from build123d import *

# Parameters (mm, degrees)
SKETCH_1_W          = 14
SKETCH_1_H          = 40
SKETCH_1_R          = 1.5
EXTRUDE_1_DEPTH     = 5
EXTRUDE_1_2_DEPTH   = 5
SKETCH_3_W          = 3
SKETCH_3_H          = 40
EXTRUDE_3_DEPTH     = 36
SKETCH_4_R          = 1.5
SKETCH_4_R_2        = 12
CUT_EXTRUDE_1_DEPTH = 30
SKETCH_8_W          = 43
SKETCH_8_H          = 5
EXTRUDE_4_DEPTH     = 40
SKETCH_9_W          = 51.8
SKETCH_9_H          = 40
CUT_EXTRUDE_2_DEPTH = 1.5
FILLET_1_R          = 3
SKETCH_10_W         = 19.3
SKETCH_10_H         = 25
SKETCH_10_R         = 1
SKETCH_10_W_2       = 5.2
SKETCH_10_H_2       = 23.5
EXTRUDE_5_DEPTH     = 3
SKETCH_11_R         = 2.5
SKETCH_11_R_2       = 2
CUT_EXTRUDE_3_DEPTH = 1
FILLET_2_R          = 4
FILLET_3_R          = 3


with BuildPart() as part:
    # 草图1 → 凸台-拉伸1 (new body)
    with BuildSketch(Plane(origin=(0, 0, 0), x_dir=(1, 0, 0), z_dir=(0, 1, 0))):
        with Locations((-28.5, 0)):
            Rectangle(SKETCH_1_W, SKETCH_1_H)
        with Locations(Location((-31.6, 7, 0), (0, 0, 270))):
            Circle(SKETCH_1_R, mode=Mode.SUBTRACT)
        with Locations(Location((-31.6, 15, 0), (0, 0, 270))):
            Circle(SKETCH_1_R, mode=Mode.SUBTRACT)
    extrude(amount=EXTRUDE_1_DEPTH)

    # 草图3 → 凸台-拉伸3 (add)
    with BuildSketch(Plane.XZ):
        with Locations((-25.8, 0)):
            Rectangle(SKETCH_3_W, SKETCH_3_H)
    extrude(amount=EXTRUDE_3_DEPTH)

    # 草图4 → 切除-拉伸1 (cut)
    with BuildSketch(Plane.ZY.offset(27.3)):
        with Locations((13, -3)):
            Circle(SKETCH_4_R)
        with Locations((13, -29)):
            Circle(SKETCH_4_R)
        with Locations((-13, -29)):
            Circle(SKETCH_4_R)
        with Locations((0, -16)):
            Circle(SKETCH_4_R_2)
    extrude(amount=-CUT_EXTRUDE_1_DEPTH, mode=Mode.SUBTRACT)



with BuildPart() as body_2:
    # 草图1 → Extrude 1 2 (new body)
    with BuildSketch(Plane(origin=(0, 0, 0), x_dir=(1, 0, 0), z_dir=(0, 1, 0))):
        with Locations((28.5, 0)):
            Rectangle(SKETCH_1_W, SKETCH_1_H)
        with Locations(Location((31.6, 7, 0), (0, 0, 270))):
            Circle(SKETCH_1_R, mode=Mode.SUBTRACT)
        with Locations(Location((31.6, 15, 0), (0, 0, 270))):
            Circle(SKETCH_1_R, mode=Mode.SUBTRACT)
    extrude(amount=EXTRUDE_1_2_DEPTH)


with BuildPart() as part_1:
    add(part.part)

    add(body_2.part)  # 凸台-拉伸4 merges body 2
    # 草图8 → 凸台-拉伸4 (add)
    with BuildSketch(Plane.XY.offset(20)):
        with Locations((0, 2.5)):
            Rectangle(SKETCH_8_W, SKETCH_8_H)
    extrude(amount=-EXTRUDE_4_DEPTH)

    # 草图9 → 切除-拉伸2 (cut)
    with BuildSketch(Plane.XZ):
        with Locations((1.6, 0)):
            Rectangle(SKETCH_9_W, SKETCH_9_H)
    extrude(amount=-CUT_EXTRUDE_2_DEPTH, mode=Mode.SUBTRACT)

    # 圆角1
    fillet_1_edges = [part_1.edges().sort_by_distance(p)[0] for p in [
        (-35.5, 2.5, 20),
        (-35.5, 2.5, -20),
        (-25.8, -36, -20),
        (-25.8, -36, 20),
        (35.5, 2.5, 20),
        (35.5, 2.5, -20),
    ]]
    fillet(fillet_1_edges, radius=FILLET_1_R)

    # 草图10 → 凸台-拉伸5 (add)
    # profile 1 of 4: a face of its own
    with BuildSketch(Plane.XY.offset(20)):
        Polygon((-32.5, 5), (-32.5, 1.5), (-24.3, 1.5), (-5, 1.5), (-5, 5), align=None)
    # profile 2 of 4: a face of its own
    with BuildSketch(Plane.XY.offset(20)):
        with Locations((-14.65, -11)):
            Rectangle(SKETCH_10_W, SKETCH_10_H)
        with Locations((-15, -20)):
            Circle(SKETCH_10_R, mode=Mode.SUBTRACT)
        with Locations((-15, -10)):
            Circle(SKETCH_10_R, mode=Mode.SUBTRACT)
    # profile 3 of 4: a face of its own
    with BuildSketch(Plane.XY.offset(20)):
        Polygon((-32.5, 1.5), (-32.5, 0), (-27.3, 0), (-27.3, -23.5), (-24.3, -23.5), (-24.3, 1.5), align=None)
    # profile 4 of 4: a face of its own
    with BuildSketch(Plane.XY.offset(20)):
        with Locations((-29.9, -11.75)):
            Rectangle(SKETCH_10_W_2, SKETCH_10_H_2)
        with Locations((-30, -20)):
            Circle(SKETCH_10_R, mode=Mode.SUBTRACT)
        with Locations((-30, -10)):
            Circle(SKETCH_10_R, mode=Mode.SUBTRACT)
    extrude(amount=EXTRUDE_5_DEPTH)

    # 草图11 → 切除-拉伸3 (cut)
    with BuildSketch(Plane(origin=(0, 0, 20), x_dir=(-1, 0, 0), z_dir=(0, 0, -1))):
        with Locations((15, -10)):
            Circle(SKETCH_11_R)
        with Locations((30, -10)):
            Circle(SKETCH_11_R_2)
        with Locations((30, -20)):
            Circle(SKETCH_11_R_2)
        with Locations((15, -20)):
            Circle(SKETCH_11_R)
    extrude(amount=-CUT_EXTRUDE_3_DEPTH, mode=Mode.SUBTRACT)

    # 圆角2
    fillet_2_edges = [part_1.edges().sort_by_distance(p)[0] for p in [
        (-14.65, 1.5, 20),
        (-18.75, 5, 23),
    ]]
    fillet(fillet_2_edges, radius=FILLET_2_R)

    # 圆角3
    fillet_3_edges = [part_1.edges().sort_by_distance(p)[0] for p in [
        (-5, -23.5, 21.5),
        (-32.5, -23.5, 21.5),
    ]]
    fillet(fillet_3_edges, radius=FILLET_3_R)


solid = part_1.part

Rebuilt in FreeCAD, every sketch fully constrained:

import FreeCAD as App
import Part
import Sketcher
from FreeCAD import Vector


def edges_at(feature, points):
    """Names of the edges that pass closest to the given points."""
    edges = feature.Shape.Edges
    near = lambda p: min(range(len(edges)), key=lambda i: edges[i].distToShape(Part.Vertex(*p))[0])
    return sorted({f"Edge{near(p) + 1}" for p in points})

doc = App.newDocument("Part")
body = doc.addObject("PartDesign::Body", "Body")

# Sketch on XZ plane
sketch1 = body.newObject("Sketcher::SketchObject", "Sketch")
sketch1.AttachmentSupport = (doc.getObject("XZ_Plane"), [""])
sketch1.MapMode = "FlatFace"
sketch1.addGeometry([
    Part.LineSegment(Vector(-35.5, -20, 0), Vector(-35.5, 20, 0)),  # 0
    Part.LineSegment(Vector(-35.5, 20, 0), Vector(-21.5, 20, 0)),  # 1
    Part.LineSegment(Vector(-21.5, 20, 0), Vector(-21.5, -20, 0)),  # 2
    Part.LineSegment(Vector(-21.5, -20, 0), Vector(-35.5, -20, 0)),  # 3
    Part.Circle(Vector(-31.6, -7, 0), Vector(0, 0, 1), 1.5),  # 4
    Part.Circle(Vector(-31.6, -15, 0), Vector(0, 0, 1), 1.5),  # 5
], False)
sketch1.addConstraint([
    Sketcher.Constraint("Coincident", 0, 2, 1, 1),
    Sketcher.Constraint("Coincident", 1, 2, 2, 1),
    Sketcher.Constraint("Coincident", 2, 2, 3, 1),
    Sketcher.Constraint("Coincident", 3, 2, 0, 1),
    Sketcher.Constraint("Vertical", 0),
    Sketcher.Constraint("Horizontal", 1),
    Sketcher.Constraint("Vertical", 2),
    Sketcher.Constraint("Horizontal", 3),
    Sketcher.Constraint("Equal", 4, 5),
    Sketcher.Constraint("Vertical", 4, 3, 5, 3),
    Sketcher.Constraint("Diameter", 4, 3.0),
    Sketcher.Constraint("DistanceX", 1, 1, 1, 2, 14.0),
    Sketcher.Constraint("DistanceY", 0, 1, 0, 2, 40.0),
    Sketcher.Constraint("DistanceY", 4, 3, -1, 1, 7.0),
    Sketcher.Constraint("DistanceY", 5, 3, -1, 1, 15.0),
    Sketcher.Constraint("DistanceY", -1, 1, 0, 2, 20.0),
    Sketcher.Constraint("DistanceX", 4, 3, -1, 1, 31.6),
    Sketcher.Constraint("DistanceX", 0, 2, -1, 1, 35.5),
])
pad1 = body.newObject("PartDesign::Pad", "Pad")
pad1.Profile = sketch1
pad1.Length = 5
pad1.Reversed = True

# Sketch on XZ plane
sketch2 = body.newObject("Sketcher::SketchObject", "Sketch001")
sketch2.AttachmentSupport = (doc.getObject("XZ_Plane"), [""])
sketch2.MapMode = "FlatFace"
sketch2.addGeometry([
    Part.LineSegment(Vector(-27.3, 20, 0), Vector(-27.3, -20, 0)),
    Part.LineSegment(Vector(-27.3, -20, 0), Vector(-24.3, -20, 0)),
    Part.LineSegment(Vector(-24.3, -20, 0), Vector(-24.3, 20, 0)),
    Part.LineSegment(Vector(-24.3, 20, 0), Vector(-27.3, 20, 0)),
], False)
sketch2.addConstraint([
    Sketcher.Constraint("Coincident", 0, 2, 1, 1),
    Sketcher.Constraint("Coincident", 1, 2, 2, 1),
    Sketcher.Constraint("Coincident", 2, 2, 3, 1),
    Sketcher.Constraint("Coincident", 3, 2, 0, 1),
    Sketcher.Constraint("Vertical", 0),
    Sketcher.Constraint("Horizontal", 1),
    Sketcher.Constraint("Vertical", 2),
    Sketcher.Constraint("Horizontal", 3),
    Sketcher.Constraint("DistanceX", 1, 1, 1, 2, 3.0),
    Sketcher.Constraint("DistanceY", 0, 2, 0, 1, 40.0),
    Sketcher.Constraint("DistanceY", 0, 2, -1, 1, 20.0),
    Sketcher.Constraint("DistanceX", 0, 2, -1, 1, 27.3),
])
pad2 = body.newObject("PartDesign::Pad", "Pad001")
pad2.Profile = sketch2
pad2.Length = 36

# Sketch on YZ plane
sketch3 = body.newObject("Sketcher::SketchObject", "Sketch002")
sketch3.AttachmentSupport = (doc.getObject("YZ_Plane"), [""])
sketch3.MapMode = "FlatFace"
sketch3.AttachmentOffset = App.Placement(Vector(0, 0, -27.3), App.Rotation())
sketch3.addGeometry([
    Part.Circle(Vector(-3, 13, 0), Vector(0, 0, 1), 1.5),
    Part.Circle(Vector(-29, 13, 0), Vector(0, 0, 1), 1.5),
    Part.Circle(Vector(-29, -13, 0), Vector(0, 0, 1), 1.5),
    Part.Circle(Vector(-16, 0, 0), Vector(0, 0, 1), 12),
], False)
sketch3.addConstraint([
    Sketcher.Constraint("Equal", 0, 1),
    Sketcher.Constraint("Equal", 1, 2),
    Sketcher.Constraint("Symmetric", 1, 3, 2, 3, -1),
    Sketcher.Constraint("PointOnObject", 3, 3, -1),
    Sketcher.Constraint("Horizontal", 0, 3, 1, 3),
    Sketcher.Constraint("Diameter", 0, 3.0),
    Sketcher.Constraint("Diameter", 3, 24.0),
    Sketcher.Constraint("DistanceX", 0, 3, -1, 1, 3.0),
    Sketcher.Constraint("DistanceY", -1, 1, 0, 3, 13.0),
    Sketcher.Constraint("DistanceX", 1, 3, -1, 1, 29.0),
    Sketcher.Constraint("DistanceX", 3, 3, -1, 1, 16.0),
])
pocket1 = body.newObject("PartDesign::Pocket", "Pocket")
pocket1.Profile = sketch3
pocket1.Length = 30
pocket1.Reversed = True
body2 = doc.addObject("PartDesign::Body", "Body001")

# Sketch on XZ plane
sketch4 = body2.newObject("Sketcher::SketchObject", "Sketch003")
sketch4.AttachmentSupport = (doc.getObject("XZ_Plane001"), [""])
sketch4.MapMode = "FlatFace"
sketch4.addGeometry([
    Part.LineSegment(Vector(21.5, -20, 0), Vector(21.5, 20, 0)),  # 0
    Part.LineSegment(Vector(21.5, 20, 0), Vector(35.5, 20, 0)),  # 1
    Part.LineSegment(Vector(35.5, 20, 0), Vector(35.5, -20, 0)),  # 2
    Part.LineSegment(Vector(35.5, -20, 0), Vector(21.5, -20, 0)),  # 3
    Part.Circle(Vector(31.6, -7, 0), Vector(0, 0, 1), 1.5),  # 4
    Part.Circle(Vector(31.6, -15, 0), Vector(0, 0, 1), 1.5),  # 5
], False)
sketch4.addConstraint([
    Sketcher.Constraint("Coincident", 0, 2, 1, 1),
    Sketcher.Constraint("Coincident", 1, 2, 2, 1),
    Sketcher.Constraint("Coincident", 2, 2, 3, 1),
    Sketcher.Constraint("Coincident", 3, 2, 0, 1),
    Sketcher.Constraint("Vertical", 0),
    Sketcher.Constraint("Horizontal", 1),
    Sketcher.Constraint("Vertical", 2),
    Sketcher.Constraint("Horizontal", 3),
    Sketcher.Constraint("Equal", 4, 5),
    Sketcher.Constraint("Vertical", 4, 3, 5, 3),
    Sketcher.Constraint("Diameter", 4, 3.0),
    Sketcher.Constraint("DistanceX", 1, 1, 1, 2, 14.0),
    Sketcher.Constraint("DistanceY", 0, 1, 0, 2, 40.0),
    Sketcher.Constraint("DistanceY", 4, 3, -1, 1, 7.0),
    Sketcher.Constraint("DistanceY", 5, 3, -1, 1, 15.0),
    Sketcher.Constraint("DistanceY", -1, 1, 0, 2, 20.0),
    Sketcher.Constraint("DistanceX", -1, 1, 4, 3, 31.6),
    Sketcher.Constraint("DistanceX", -1, 1, 0, 2, 21.5),
])
pad3 = body2.newObject("PartDesign::Pad", "Pad002")
pad3.Profile = sketch4
pad3.Length = 5
pad3.Reversed = True
body.AllowCompound = True
doc.recompute()

boolean = body.newObject("PartDesign::Boolean", "Boolean")
boolean.Type = "Fuse"
boolean.addObjects([body2])

# Sketch on XY plane
sketch5 = body.newObject("Sketcher::SketchObject", "Sketch004")
sketch5.AttachmentSupport = (doc.getObject("XY_Plane"), [""])
sketch5.MapMode = "FlatFace"
sketch5.AttachmentOffset = App.Placement(Vector(0, 0, 20), App.Rotation())
sketch5.addGeometry([
    Part.LineSegment(Vector(-22, 5, 0), Vector(-22, 0, 0)),
    Part.LineSegment(Vector(-22, 0, 0), Vector(22, 0, 0)),
    Part.LineSegment(Vector(22, 0, 0), Vector(22, 5, 0)),
    Part.LineSegment(Vector(22, 5, 0), Vector(-22, 5, 0)),
], False)
sketch5.addConstraint([
    Sketcher.Constraint("Coincident", 0, 2, 1, 1),
    Sketcher.Constraint("Coincident", 1, 2, 2, 1),
    Sketcher.Constraint("Coincident", 2, 2, 3, 1),
    Sketcher.Constraint("Coincident", 3, 2, 0, 1),
    Sketcher.Constraint("Vertical", 0),
    Sketcher.Constraint("Horizontal", 1),
    Sketcher.Constraint("Vertical", 2),
    Sketcher.Constraint("Horizontal", 3),
    Sketcher.Constraint("Symmetric", 0, 2, 1, 2, -1, 1),
    Sketcher.Constraint("DistanceX", 1, 1, 1, 2, 43.0),
    Sketcher.Constraint("DistanceY", 0, 2, 0, 1, 5.0),
])
pad4 = body.newObject("PartDesign::Pad", "Pad003")
pad4.Profile = sketch5
pad4.Length = 40
pad4.Reversed = True

# Sketch on XZ plane
sketch6 = body.newObject("Sketcher::SketchObject", "Sketch005")
sketch6.AttachmentSupport = (doc.getObject("XZ_Plane"), [""])
sketch6.MapMode = "FlatFace"
sketch6.addGeometry([
    Part.LineSegment(Vector(-24, 20, 0), Vector(-24, -20, 0)),
    Part.LineSegment(Vector(-24, -20, 0), Vector(28, -20, 0)),
    Part.LineSegment(Vector(28, -20, 0), Vector(28, 20, 0)),
    Part.LineSegment(Vector(28, 20, 0), Vector(-24, 20, 0)),
], False)
sketch6.addConstraint([
    Sketcher.Constraint("Coincident", 0, 2, 1, 1),
    Sketcher.Constraint("Coincident", 1, 2, 2, 1),
    Sketcher.Constraint("Coincident", 2, 2, 3, 1),
    Sketcher.Constraint("Coincident", 3, 2, 0, 1),
    Sketcher.Constraint("Vertical", 0),
    Sketcher.Constraint("Horizontal", 1),
    Sketcher.Constraint("Vertical", 2),
    Sketcher.Constraint("Horizontal", 3),
    Sketcher.Constraint("DistanceY", 0, 2, 0, 1, 40.0),
    Sketcher.Constraint("DistanceX", 1, 1, 1, 2, 51.8),
    Sketcher.Constraint("DistanceY", 0, 2, -1, 1, 20.0),
    Sketcher.Constraint("DistanceX", 0, 2, -1, 1, 24.3),
])
pocket2 = body.newObject("PartDesign::Pocket", "Pocket001")
pocket2.Profile = sketch6
pocket2.Length = 1.5
doc.recompute()

fillet = body.newObject("PartDesign::Fillet", "Fillet")
fillet.Base = (pocket2, edges_at(pocket2, [
    (-35.5, 2.5, 20),
    (-35.5, 2.5, -20),
    (-25.8, -36, -20),
    (-25.8, -36, 20),
    (35.5, 2.5, 20),
    (35.5, 2.5, -20),
]))
fillet.Radius = 3

# Sketch on XY plane
sketch7 = body.newObject("Sketcher::SketchObject", "Sketch006")
sketch7.AttachmentSupport = (doc.getObject("XY_Plane"), [""])
sketch7.MapMode = "FlatFace"
sketch7.AttachmentOffset = App.Placement(Vector(0, 0, 20), App.Rotation())
sketch7.addGeometry([
    Part.LineSegment(Vector(-32.5, 5, 0), Vector(-32.5, -23.5, 0)),  # 0
    Part.LineSegment(Vector(-32.5, -23.5, 0), Vector(-5, -23.5, 0)),  # 1
    Part.LineSegment(Vector(-5, -23.5, 0), Vector(-5, 5, 0)),  # 2
    Part.LineSegment(Vector(-5, 5, 0), Vector(-32.5, 5, 0)),  # 3
    Part.Circle(Vector(-15, -20, 0), Vector(0, 0, 1), 1),  # 4
    Part.Circle(Vector(-15, -10, 0), Vector(0, 0, 1), 1),  # 5
    Part.Circle(Vector(-30, -10, 0), Vector(0, 0, 1), 1),  # 6
    Part.Circle(Vector(-30, -20, 0), Vector(0, 0, 1), 1),  # 7
], False)
sketch7.addConstraint([
    Sketcher.Constraint("Coincident", 0, 2, 1, 1),
    Sketcher.Constraint("Coincident", 1, 2, 2, 1),
    Sketcher.Constraint("Coincident", 2, 2, 3, 1),
    Sketcher.Constraint("Coincident", 3, 2, 0, 1),
    Sketcher.Constraint("Vertical", 0),
    Sketcher.Constraint("Horizontal", 1),
    Sketcher.Constraint("Vertical", 2),
    Sketcher.Constraint("Horizontal", 3),
    Sketcher.Constraint("Equal", 4, 5),
    Sketcher.Constraint("Equal", 5, 6),
    Sketcher.Constraint("Equal", 6, 7),
    Sketcher.Constraint("Horizontal", 5, 3, 6, 3),
    Sketcher.Constraint("Horizontal", 4, 3, 7, 3),
    Sketcher.Constraint("Vertical", 4, 3, 5, 3),
    Sketcher.Constraint("Vertical", 6, 3, 7, 3),
    Sketcher.Constraint("Diameter", 4, 2.0),
    Sketcher.Constraint("DistanceX", 1, 1, 1, 2, 27.5),
    Sketcher.Constraint("DistanceY", 0, 2, 0, 1, 28.5),
    Sketcher.Constraint("DistanceX", 4, 3, -1, 1, 15.0),
    Sketcher.Constraint("DistanceY", 4, 3, -1, 1, 20.0),
    Sketcher.Constraint("DistanceY", 5, 3, -1, 1, 10.0),
    Sketcher.Constraint("DistanceX", 6, 3, -1, 1, 30.0),
    Sketcher.Constraint("DistanceX", 1, 2, -1, 1, 5.0),
    Sketcher.Constraint("DistanceY", -1, 1, 2, 2, 5.0),
])
pad5 = body.newObject("PartDesign::Pad", "Pad004")
pad5.Profile = sketch7
pad5.Length = 3

# Sketch on XY plane
sketch8 = body.newObject("Sketcher::SketchObject", "Sketch007")
sketch8.AttachmentSupport = (doc.getObject("XY_Plane"), [""])
sketch8.MapMode = "FlatFace"
sketch8.AttachmentOffset = App.Placement(Vector(0, 0, 20), App.Rotation())
sketch8.addGeometry([
    Part.Circle(Vector(-15, -10, 0), Vector(0, 0, 1), 2.5),
    Part.Circle(Vector(-30, -10, 0), Vector(0, 0, 1), 2),
    Part.Circle(Vector(-30, -20, 0), Vector(0, 0, 1), 2),
    Part.Circle(Vector(-15, -20, 0), Vector(0, 0, 1), 2.5),
], False)
sketch8.addConstraint([
    Sketcher.Constraint("Equal", 1, 2),
    Sketcher.Constraint("Equal", 0, 3),
    Sketcher.Constraint("Horizontal", 0, 3, 1, 3),
    Sketcher.Constraint("Horizontal", 2, 3, 3, 3),
    Sketcher.Constraint("Vertical", 1, 3, 2, 3),
    Sketcher.Constraint("Vertical", 0, 3, 3, 3),
    Sketcher.Constraint("Diameter", 0, 5.0),
    Sketcher.Constraint("Diameter", 1, 4.0),
    Sketcher.Constraint("DistanceX", 0, 3, -1, 1, 15.0),
    Sketcher.Constraint("DistanceY", 0, 3, -1, 1, 10.0),
    Sketcher.Constraint("DistanceX", 1, 3, -1, 1, 30.0),
    Sketcher.Constraint("DistanceY", 2, 3, -1, 1, 20.0),
])
pocket3 = body.newObject("PartDesign::Pocket", "Pocket002")
pocket3.Profile = sketch8
pocket3.Length = 1
pocket3.Reversed = True
doc.recompute()

fillet2 = body.newObject("PartDesign::Fillet", "Fillet001")
fillet2.Base = (pocket3, edges_at(pocket3, [(-14.65, 1.5, 20), (-18.75, 5, 23)]))
fillet2.Radius = 4
doc.recompute()

fillet3 = body.newObject("PartDesign::Fillet", "Fillet002")
fillet3.Base = (fillet2, edges_at(fillet2, [(-5, -23.5, 21.5), (-32.5, -23.5, 21.5)]))
fillet3.Radius = 3

doc.recompute()
